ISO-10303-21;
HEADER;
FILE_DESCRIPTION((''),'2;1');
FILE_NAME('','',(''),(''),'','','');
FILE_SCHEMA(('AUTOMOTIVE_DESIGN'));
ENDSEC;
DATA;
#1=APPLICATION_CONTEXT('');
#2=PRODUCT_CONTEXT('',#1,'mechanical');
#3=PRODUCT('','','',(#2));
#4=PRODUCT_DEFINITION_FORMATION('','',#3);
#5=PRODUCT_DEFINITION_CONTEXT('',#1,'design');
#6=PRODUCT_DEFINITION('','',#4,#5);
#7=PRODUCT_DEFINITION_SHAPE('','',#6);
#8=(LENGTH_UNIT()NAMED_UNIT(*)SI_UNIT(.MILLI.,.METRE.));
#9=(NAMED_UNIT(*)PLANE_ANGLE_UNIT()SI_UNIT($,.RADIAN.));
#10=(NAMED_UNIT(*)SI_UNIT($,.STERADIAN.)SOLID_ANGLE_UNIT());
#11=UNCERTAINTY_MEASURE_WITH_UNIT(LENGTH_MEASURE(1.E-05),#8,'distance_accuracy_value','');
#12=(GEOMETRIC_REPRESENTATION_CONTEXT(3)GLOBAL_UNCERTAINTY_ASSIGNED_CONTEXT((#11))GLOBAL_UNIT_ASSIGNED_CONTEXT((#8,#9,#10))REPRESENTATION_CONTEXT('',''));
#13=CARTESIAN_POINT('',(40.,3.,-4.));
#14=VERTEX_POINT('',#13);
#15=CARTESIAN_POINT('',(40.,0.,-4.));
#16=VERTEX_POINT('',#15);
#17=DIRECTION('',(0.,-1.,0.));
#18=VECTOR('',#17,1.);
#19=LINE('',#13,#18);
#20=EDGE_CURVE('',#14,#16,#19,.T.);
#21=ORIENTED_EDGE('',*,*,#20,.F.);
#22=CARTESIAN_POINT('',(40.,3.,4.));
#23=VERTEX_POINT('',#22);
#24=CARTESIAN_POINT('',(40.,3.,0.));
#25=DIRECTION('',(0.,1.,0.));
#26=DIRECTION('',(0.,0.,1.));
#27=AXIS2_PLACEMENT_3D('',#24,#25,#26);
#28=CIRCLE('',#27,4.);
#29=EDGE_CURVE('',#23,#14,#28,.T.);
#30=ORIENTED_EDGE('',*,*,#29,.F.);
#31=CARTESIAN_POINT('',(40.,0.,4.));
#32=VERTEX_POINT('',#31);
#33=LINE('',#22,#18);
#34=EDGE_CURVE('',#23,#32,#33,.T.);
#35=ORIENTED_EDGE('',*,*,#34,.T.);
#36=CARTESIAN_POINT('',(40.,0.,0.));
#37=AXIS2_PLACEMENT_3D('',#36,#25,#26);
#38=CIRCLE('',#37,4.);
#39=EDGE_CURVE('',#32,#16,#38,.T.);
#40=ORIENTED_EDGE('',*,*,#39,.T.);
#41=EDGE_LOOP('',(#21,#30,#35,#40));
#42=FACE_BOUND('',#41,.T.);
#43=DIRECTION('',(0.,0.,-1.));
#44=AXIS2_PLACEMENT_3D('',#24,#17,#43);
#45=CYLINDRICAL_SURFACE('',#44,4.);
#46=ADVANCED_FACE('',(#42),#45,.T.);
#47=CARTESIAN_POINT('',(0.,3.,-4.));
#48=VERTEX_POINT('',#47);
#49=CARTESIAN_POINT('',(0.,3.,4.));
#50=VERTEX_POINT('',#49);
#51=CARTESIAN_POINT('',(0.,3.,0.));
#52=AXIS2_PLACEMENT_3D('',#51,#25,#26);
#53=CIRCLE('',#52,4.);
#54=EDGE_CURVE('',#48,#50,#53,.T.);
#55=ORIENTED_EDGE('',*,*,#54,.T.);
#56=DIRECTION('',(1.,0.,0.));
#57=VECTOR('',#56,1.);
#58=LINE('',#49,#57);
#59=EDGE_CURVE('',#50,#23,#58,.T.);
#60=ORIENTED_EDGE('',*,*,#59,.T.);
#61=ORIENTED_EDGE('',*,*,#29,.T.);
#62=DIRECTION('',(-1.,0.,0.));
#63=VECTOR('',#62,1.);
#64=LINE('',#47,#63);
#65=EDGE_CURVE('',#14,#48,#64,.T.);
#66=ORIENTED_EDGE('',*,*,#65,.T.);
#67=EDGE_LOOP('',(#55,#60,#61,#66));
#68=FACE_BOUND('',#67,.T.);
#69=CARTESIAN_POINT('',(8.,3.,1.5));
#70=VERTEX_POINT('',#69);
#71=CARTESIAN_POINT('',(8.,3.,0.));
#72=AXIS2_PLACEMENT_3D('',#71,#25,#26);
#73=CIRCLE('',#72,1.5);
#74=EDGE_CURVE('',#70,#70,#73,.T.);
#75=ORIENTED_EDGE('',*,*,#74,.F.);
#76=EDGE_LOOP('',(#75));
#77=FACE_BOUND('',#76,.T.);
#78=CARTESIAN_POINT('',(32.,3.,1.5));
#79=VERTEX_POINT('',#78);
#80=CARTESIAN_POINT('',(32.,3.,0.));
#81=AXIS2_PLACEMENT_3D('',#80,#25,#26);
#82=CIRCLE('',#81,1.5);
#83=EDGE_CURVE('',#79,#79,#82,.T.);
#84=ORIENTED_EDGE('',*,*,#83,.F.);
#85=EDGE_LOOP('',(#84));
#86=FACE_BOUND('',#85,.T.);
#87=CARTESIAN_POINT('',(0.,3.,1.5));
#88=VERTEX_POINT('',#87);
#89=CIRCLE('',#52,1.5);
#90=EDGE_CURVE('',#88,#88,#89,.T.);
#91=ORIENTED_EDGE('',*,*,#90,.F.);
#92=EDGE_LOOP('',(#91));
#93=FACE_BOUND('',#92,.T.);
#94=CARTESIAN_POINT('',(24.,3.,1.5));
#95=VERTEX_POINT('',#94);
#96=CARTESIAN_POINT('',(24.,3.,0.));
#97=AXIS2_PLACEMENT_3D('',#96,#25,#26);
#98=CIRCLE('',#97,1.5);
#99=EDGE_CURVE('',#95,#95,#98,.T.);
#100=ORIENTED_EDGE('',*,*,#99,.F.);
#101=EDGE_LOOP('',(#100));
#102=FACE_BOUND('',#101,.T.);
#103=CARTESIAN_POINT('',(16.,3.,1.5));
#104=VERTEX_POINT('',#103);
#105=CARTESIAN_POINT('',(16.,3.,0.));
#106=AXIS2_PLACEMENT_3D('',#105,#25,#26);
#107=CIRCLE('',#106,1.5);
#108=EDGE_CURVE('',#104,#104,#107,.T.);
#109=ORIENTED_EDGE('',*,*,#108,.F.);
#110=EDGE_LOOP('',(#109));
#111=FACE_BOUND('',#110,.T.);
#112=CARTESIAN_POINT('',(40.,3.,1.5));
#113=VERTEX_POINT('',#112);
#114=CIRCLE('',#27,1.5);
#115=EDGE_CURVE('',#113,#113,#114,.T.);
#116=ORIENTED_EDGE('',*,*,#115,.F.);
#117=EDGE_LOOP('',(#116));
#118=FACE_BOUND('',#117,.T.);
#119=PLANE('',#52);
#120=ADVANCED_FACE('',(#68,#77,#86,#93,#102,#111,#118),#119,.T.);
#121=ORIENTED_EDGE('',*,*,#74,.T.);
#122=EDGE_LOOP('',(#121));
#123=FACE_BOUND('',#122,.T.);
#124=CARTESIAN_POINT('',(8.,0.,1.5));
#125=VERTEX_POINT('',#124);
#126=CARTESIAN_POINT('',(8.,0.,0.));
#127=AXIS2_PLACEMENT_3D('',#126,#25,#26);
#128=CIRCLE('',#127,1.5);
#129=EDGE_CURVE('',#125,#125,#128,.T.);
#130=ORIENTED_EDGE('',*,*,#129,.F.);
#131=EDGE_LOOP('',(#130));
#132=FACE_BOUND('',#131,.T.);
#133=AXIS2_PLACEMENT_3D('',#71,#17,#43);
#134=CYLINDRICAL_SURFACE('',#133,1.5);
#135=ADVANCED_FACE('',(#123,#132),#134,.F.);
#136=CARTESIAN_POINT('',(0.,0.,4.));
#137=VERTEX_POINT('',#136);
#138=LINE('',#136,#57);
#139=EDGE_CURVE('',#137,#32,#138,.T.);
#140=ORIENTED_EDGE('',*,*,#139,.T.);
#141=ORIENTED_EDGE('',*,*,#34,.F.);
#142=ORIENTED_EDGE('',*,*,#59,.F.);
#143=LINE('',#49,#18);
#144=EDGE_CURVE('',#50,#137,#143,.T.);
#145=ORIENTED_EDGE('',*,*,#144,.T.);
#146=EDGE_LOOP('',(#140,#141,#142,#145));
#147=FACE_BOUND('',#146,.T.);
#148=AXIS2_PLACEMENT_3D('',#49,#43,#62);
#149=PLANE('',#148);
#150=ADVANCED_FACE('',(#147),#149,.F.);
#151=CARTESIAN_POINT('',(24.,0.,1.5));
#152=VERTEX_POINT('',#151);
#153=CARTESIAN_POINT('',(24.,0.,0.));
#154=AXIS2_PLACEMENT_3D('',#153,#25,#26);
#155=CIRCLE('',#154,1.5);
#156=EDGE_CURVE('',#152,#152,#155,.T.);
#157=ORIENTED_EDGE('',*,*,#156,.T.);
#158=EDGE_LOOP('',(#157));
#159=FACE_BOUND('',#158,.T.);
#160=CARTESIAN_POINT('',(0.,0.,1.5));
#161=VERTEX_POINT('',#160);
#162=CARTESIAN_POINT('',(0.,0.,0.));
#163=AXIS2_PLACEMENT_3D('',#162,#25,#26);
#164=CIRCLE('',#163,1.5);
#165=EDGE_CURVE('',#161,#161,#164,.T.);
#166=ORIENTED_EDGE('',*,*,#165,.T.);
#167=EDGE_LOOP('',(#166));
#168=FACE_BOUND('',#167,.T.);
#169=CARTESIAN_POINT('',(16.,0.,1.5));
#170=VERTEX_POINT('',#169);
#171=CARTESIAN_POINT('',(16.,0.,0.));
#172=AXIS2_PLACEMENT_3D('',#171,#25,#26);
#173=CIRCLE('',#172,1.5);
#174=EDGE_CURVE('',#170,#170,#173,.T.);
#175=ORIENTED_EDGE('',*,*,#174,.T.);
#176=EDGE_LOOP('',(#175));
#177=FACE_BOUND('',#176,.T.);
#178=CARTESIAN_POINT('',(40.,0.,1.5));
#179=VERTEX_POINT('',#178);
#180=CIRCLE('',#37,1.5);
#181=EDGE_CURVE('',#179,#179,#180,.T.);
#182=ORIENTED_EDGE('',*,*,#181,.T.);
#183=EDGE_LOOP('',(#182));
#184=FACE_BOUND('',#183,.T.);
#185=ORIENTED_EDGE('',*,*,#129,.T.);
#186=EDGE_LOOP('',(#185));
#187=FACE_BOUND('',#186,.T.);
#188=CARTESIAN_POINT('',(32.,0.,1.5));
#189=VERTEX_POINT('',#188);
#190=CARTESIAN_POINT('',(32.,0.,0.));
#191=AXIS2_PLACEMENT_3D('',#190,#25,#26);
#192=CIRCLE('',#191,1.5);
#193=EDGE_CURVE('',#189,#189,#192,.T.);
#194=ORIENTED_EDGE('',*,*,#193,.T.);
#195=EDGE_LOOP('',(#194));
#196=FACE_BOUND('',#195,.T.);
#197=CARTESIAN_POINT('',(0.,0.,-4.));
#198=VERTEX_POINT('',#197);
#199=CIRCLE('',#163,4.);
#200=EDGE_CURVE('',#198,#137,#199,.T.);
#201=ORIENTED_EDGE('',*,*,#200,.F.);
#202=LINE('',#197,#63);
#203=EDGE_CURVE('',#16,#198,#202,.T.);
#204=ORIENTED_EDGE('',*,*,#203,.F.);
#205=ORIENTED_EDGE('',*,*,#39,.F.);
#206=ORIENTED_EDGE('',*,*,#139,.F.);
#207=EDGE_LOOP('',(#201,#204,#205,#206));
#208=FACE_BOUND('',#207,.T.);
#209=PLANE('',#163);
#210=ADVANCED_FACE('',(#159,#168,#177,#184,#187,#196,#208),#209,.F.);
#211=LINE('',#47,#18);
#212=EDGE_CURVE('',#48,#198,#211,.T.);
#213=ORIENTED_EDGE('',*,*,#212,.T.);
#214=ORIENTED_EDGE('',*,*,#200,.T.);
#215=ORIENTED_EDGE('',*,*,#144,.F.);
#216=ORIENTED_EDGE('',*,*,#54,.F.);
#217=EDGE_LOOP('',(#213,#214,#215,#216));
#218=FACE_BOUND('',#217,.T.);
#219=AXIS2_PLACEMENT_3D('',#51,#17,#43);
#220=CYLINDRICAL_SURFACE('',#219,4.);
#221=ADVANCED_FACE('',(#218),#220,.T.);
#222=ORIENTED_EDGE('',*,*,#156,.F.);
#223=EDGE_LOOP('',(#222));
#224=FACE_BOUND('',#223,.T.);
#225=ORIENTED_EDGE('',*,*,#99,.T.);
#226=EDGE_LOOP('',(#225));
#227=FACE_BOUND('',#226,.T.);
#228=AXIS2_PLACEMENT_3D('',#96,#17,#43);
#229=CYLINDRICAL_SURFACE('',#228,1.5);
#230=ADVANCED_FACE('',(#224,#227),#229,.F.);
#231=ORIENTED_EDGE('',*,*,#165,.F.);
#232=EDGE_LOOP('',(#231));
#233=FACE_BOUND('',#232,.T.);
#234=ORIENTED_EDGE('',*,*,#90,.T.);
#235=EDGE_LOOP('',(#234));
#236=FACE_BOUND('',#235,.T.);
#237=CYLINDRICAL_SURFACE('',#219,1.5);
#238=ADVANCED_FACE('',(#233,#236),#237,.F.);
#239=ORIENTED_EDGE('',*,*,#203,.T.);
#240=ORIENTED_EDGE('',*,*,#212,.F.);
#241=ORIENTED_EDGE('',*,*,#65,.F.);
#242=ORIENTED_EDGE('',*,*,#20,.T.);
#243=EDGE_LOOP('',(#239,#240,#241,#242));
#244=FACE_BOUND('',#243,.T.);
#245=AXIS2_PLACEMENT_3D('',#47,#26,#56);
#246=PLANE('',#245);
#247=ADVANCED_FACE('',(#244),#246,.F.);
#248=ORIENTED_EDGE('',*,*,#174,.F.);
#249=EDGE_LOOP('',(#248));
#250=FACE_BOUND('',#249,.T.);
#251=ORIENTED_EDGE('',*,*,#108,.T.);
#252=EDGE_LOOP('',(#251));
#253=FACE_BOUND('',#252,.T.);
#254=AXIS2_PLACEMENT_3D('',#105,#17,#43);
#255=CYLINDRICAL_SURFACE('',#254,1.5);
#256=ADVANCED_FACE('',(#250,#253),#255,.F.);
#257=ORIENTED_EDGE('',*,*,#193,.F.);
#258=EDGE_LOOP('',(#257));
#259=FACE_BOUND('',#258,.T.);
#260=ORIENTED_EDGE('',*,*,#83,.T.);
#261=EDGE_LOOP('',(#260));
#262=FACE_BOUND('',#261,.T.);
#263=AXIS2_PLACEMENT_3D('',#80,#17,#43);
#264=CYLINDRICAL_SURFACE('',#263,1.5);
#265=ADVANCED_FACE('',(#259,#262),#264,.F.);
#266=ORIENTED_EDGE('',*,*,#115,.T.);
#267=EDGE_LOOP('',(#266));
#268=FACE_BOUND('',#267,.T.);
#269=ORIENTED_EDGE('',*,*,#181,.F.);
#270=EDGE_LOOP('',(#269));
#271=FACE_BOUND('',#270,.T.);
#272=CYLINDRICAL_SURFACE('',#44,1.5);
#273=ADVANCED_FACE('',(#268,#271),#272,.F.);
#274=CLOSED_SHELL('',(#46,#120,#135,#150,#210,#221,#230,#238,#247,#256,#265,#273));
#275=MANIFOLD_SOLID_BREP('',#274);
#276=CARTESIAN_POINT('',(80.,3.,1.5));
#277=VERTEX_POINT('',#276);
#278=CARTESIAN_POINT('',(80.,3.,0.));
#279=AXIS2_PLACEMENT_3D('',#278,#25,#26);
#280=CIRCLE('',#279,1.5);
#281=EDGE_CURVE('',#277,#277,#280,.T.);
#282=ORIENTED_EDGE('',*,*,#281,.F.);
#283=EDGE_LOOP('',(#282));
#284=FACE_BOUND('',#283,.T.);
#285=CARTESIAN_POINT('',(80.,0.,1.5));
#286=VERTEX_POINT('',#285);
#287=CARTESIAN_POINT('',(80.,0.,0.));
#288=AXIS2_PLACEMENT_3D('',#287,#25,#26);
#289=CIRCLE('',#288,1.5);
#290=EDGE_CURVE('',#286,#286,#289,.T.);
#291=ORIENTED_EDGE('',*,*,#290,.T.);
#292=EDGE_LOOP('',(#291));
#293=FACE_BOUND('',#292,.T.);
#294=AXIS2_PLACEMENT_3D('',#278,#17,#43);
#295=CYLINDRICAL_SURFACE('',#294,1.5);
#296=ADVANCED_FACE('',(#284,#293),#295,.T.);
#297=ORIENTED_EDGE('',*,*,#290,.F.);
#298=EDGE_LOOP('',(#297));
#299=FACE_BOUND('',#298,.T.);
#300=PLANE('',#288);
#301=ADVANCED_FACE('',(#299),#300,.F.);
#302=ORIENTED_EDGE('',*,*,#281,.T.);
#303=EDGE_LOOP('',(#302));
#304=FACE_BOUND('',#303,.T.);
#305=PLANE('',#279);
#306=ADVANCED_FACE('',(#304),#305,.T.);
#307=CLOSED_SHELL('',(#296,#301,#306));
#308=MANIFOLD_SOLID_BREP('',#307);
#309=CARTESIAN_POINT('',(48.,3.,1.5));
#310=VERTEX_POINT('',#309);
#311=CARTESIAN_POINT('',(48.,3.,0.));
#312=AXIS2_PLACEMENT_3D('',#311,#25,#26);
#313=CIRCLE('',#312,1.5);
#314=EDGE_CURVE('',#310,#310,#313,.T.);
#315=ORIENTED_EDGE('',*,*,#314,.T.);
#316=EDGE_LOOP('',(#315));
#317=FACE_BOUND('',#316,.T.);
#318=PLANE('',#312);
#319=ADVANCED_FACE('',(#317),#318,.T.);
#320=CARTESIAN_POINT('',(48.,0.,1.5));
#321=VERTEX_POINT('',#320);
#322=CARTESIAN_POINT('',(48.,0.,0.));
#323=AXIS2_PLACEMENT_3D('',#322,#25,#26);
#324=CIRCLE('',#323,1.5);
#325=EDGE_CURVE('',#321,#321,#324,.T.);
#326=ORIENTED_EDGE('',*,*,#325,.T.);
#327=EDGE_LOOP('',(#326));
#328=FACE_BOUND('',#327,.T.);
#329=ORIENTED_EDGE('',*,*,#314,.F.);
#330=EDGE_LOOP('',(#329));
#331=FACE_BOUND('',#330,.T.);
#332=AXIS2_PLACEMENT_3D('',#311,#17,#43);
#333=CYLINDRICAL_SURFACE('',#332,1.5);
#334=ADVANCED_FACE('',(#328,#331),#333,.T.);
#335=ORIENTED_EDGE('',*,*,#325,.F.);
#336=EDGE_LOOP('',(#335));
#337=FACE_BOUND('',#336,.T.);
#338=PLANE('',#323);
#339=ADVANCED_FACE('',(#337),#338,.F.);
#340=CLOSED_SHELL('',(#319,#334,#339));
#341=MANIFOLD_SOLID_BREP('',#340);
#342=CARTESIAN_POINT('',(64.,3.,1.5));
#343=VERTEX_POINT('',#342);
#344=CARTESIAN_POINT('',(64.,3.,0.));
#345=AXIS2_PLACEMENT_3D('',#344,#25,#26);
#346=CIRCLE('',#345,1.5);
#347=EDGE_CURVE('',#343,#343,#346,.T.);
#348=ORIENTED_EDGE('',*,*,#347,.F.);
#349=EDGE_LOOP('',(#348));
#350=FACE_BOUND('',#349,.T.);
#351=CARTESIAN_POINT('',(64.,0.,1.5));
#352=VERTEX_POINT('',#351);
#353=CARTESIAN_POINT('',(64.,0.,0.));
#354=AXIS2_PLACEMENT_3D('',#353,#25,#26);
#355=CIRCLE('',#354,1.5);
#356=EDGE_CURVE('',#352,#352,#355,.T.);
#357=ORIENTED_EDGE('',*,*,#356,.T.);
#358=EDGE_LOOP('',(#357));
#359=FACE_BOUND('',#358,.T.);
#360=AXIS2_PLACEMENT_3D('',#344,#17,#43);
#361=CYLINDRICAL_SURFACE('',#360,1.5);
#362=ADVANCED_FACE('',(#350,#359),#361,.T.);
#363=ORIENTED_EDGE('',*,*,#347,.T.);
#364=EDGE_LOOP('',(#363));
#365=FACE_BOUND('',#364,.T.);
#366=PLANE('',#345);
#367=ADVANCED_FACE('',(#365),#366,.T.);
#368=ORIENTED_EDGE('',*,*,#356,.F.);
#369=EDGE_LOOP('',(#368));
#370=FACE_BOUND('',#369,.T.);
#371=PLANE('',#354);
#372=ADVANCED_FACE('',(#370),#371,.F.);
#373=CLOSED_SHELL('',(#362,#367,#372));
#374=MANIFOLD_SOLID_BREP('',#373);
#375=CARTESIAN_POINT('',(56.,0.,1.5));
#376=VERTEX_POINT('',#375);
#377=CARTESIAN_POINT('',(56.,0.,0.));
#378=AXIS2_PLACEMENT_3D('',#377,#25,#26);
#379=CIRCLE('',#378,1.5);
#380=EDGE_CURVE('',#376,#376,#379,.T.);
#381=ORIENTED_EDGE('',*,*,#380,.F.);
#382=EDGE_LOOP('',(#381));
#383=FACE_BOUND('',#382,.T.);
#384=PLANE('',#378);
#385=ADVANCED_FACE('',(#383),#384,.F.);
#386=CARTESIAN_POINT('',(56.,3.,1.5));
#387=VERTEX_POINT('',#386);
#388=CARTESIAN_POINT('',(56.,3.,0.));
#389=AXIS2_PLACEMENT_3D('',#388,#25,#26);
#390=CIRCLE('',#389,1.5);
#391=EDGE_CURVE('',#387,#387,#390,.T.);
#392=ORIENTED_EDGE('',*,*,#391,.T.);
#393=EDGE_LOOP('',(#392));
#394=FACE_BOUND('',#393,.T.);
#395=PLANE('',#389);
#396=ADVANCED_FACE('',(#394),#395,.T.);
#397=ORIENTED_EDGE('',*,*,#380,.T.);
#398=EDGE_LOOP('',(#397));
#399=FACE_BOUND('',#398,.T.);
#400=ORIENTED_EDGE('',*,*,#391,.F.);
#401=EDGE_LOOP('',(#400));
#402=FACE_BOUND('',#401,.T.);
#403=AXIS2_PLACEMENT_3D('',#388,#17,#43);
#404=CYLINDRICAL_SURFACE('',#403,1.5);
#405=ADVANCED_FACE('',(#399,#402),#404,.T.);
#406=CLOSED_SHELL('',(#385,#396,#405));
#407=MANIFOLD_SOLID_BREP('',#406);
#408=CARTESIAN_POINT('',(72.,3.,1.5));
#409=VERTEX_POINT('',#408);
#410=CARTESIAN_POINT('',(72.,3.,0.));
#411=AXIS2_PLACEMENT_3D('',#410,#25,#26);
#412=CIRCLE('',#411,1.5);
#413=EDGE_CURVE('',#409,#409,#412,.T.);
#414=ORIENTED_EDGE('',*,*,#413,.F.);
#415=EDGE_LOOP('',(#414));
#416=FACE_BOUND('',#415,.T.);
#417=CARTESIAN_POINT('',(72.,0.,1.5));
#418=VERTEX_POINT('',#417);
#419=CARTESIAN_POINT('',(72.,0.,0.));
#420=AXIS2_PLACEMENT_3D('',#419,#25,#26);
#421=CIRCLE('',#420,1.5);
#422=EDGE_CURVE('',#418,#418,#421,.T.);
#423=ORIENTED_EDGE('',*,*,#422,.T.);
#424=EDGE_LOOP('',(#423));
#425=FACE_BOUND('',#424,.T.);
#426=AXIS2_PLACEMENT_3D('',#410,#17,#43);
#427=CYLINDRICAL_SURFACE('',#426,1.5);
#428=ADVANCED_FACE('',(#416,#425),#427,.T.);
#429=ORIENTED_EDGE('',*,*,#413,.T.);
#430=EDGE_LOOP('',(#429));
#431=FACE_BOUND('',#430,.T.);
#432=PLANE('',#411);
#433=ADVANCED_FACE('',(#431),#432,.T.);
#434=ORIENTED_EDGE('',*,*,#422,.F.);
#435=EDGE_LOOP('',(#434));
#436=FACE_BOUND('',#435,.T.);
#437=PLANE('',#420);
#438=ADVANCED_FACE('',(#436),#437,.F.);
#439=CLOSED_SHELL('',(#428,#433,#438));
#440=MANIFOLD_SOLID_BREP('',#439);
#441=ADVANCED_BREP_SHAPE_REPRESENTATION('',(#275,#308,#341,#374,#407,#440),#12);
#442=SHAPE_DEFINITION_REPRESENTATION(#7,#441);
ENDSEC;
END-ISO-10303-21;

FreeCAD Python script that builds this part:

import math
import FreeCAD as App
import Part
import Sketcher
from FreeCAD import Vector

doc = App.newDocument("Part")
params = doc.addObject("Spreadsheet::Sheet", "Params")
for row, (alias, value) in enumerate([
    ("sketch1_diameter", "3 mm"),
    ("pad1_length", "3 mm"),
    ("sketch2_diameter", "3 mm"),
    ("pad2_length", "3 mm"),
    ("sketch3_diameter", "3 mm"),
    ("pad3_length", "3 mm"),
    ("sketch4_diameter", "3 mm"),
    ("pad4_length", "3 mm"),
    ("sketch5_diameter", "3 mm"),
    ("pad5_length", "3 mm"),
    ("sketch6_diameter", "3 mm"),
    ("sketch6_radius", "4 mm"),
    ("sketch6_width", "40 mm"),
    ("pad6_length", "3 mm"),
], start=1):
    params.set(f"A{row}", alias)
    params.set(f"B{row}", "=" + value)
    params.setAlias(f"B{row}", alias)

body = doc.addObject("PartDesign::Body", "Body")

# Sketch on XZ plane
sketch1 = body.newObject("Sketcher::SketchObject", "Sketch")
sketch1.AttachmentSupport = (doc.getObject("XZ_Plane"), [""])
sketch1.MapMode = "FlatFace"
sketch1.addGeometry(Part.Circle(Vector(48, 0, 0), Vector(0, 0, 1), 1.5), False)
sketch1.addConstraint([
    Sketcher.Constraint("PointOnObject", 0, 3, -1),
    Sketcher.Constraint("Diameter", 0, 3.0),
    Sketcher.Constraint("DistanceX", -1, 1, 0, 3, 48.0),
])
sketch1.setExpression("Constraints[1]", "Params.sketch1_diameter")
pad1 = body.newObject("PartDesign::Pad", "Pad")
pad1.Profile = sketch1
pad1.setExpression("Length", "Params.pad1_length")
pad1.Reversed = True
body2 = doc.addObject("PartDesign::Body", "Body001")

# Sketch on XZ plane
sketch2 = body2.newObject("Sketcher::SketchObject", "Sketch001")
sketch2.AttachmentSupport = (doc.getObject("XZ_Plane001"), [""])
sketch2.MapMode = "FlatFace"
sketch2.addGeometry(Part.Circle(Vector(56, 0, 0), Vector(0, 0, 1), 1.5), False)
sketch2.addConstraint([
    Sketcher.Constraint("PointOnObject", 0, 3, -1),
    Sketcher.Constraint("Diameter", 0, 3.0),
    Sketcher.Constraint("DistanceX", -1, 1, 0, 3, 56.0),
])
sketch2.setExpression("Constraints[1]", "Params.sketch2_diameter")
pad2 = body2.newObject("PartDesign::Pad", "Pad001")
pad2.Profile = sketch2
pad2.setExpression("Length", "Params.pad2_length")
pad2.Reversed = True
body3 = doc.addObject("PartDesign::Body", "Body002")

# Sketch on XZ plane
sketch3 = body3.newObject("Sketcher::SketchObject", "Sketch002")
sketch3.AttachmentSupport = (doc.getObject("XZ_Plane002"), [""])
sketch3.MapMode = "FlatFace"
sketch3.addGeometry(Part.Circle(Vector(64, 0, 0), Vector(0, 0, 1), 1.5), False)
sketch3.addConstraint([
    Sketcher.Constraint("PointOnObject", 0, 3, -1),
    Sketcher.Constraint("Diameter", 0, 3.0),
    Sketcher.Constraint("DistanceX", -1, 1, 0, 3, 64.0),
])
sketch3.setExpression("Constraints[1]", "Params.sketch3_diameter")
pad3 = body3.newObject("PartDesign::Pad", "Pad002")
pad3.Profile = sketch3
pad3.setExpression("Length", "Params.pad3_length")
pad3.Reversed = True
body4 = doc.addObject("PartDesign::Body", "Body003")

# Sketch on XZ plane
sketch4 = body4.newObject("Sketcher::SketchObject", "Sketch003")
sketch4.AttachmentSupport = (doc.getObject("XZ_Plane003"), [""])
sketch4.MapMode = "FlatFace"
sketch4.addGeometry(Part.Circle(Vector(72, 0, 0), Vector(0, 0, 1), 1.5), False)
sketch4.addConstraint([
    Sketcher.Constraint("PointOnObject", 0, 3, -1),
    Sketcher.Constraint("Diameter", 0, 3.0),
    Sketcher.Constraint("DistanceX", -1, 1, 0, 3, 72.0),
])
sketch4.setExpression("Constraints[1]", "Params.sketch4_diameter")
pad4 = body4.newObject("PartDesign::Pad", "Pad003")
pad4.Profile = sketch4
pad4.setExpression("Length", "Params.pad4_length")
pad4.Reversed = True
body5 = doc.addObject("PartDesign::Body", "Body004")

# Sketch on XZ plane
sketch5 = body5.newObject("Sketcher::SketchObject", "Sketch004")
sketch5.AttachmentSupport = (doc.getObject("XZ_Plane004"), [""])
sketch5.MapMode = "FlatFace"
sketch5.addGeometry(Part.Circle(Vector(80, 0, 0), Vector(0, 0, 1), 1.5), False)
sketch5.addConstraint([
    Sketcher.Constraint("PointOnObject", 0, 3, -1),
    Sketcher.Constraint("Diameter", 0, 3.0),
    Sketcher.Constraint("DistanceX", -1, 1, 0, 3, 80.0),
])
sketch5.setExpression("Constraints[1]", "Params.sketch5_diameter")
pad5 = body5.newObject("PartDesign::Pad", "Pad004")
pad5.Profile = sketch5
pad5.setExpression("Length", "Params.pad5_length")
pad5.Reversed = True
body6 = doc.addObject("PartDesign::Body", "Body005")

# Sketch on XZ plane
sketch6 = body6.newObject("Sketcher::SketchObject", "Sketch005")
sketch6.AttachmentSupport = (doc.getObject("XZ_Plane005"), [""])
sketch6.MapMode = "FlatFace"
sketch6.addGeometry([
    Part.LineSegment(Vector(40, -4, 0), Vector(0, -4, 0)),  # 0
    Part.ArcOfCircle(Part.Circle(Vector(0, 0, 0), Vector(0, 0, 1), 4), math.radians(90), math.radians(270)),  # 1
    Part.LineSegment(Vector(0, 4, 0), Vector(40, 4, 0)),  # 2
    Part.ArcOfCircle(Part.Circle(Vector(40, 0, 0), Vector(0, 0, 1), 4), math.radians(-90), math.radians(90)),  # 3
    Part.Circle(Vector(40, 0, 0), Vector(0, 0, 1), 1.5),  # 4
    Part.Circle(Vector(32, 0, 0), Vector(0, 0, 1), 1.5),  # 5
    Part.Circle(Vector(24, 0, 0), Vector(0, 0, 1), 1.5),  # 6
    Part.Circle(Vector(16, 0, 0), Vector(0, 0, 1), 1.5),  # 7
    Part.Circle(Vector(8, 0, 0), Vector(0, 0, 1), 1.5),  # 8
    Part.Circle(Vector(0, 0, 0), Vector(0, 0, 1), 1.5),  # 9
], False)
sketch6.addConstraint([
    Sketcher.Constraint("Tangent", 0, 2, 1, 2),
    Sketcher.Constraint("Tangent", 1, 1, 2, 1),
    Sketcher.Constraint("Tangent", 2, 2, 3, 2),
    Sketcher.Constraint("Tangent", 3, 1, 0, 1),
    Sketcher.Constraint("Horizontal", 0),
    Sketcher.Constraint("Horizontal", 2),
    Sketcher.Constraint("Coincident", 1, 3, -1, 1),
    Sketcher.Constraint("Coincident", 9, 3, -1, 1),
    Sketcher.Constraint("Coincident", 4, 3, 3, 3),
    Sketcher.Constraint("Equal", 4, 5),
    Sketcher.Constraint("Equal", 5, 6),
    Sketcher.Constraint("Equal", 6, 7),
    Sketcher.Constraint("Equal", 7, 8),
    Sketcher.Constraint("Equal", 8, 9),
    Sketcher.Constraint("PointOnObject", 5, 3, -1),
    Sketcher.Constraint("PointOnObject", 6, 3, -1),
    Sketcher.Constraint("PointOnObject", 7, 3, -1),
    Sketcher.Constraint("PointOnObject", 8, 3, -1),
    Sketcher.Constraint("Diameter", 4, 3.0),
    Sketcher.Constraint("Radius", 1, 4.0),
    Sketcher.Constraint("DistanceX", 0, 2, 0, 1, 40.0),
    Sketcher.Constraint("DistanceX", -1, 1, 5, 3, 32.0),
    Sketcher.Constraint("DistanceX", -1, 1, 6, 3, 24.0),
    Sketcher.Constraint("DistanceX", -1, 1, 7, 3, 16.0),
    Sketcher.Constraint("DistanceX", -1, 1, 8, 3, 8.0),
])
sketch6.setExpression("Constraints[18]", "Params.sketch6_diameter")
sketch6.setExpression("Constraints[19]", "Params.sketch6_radius")
sketch6.setExpression("Constraints[20]", "Params.sketch6_width")
pad6 = body6.newObject("PartDesign::Pad", "Pad005")
pad6.Profile = sketch6
pad6.setExpression("Length", "Params.pad6_length")
pad6.Reversed = True

doc.recompute()
